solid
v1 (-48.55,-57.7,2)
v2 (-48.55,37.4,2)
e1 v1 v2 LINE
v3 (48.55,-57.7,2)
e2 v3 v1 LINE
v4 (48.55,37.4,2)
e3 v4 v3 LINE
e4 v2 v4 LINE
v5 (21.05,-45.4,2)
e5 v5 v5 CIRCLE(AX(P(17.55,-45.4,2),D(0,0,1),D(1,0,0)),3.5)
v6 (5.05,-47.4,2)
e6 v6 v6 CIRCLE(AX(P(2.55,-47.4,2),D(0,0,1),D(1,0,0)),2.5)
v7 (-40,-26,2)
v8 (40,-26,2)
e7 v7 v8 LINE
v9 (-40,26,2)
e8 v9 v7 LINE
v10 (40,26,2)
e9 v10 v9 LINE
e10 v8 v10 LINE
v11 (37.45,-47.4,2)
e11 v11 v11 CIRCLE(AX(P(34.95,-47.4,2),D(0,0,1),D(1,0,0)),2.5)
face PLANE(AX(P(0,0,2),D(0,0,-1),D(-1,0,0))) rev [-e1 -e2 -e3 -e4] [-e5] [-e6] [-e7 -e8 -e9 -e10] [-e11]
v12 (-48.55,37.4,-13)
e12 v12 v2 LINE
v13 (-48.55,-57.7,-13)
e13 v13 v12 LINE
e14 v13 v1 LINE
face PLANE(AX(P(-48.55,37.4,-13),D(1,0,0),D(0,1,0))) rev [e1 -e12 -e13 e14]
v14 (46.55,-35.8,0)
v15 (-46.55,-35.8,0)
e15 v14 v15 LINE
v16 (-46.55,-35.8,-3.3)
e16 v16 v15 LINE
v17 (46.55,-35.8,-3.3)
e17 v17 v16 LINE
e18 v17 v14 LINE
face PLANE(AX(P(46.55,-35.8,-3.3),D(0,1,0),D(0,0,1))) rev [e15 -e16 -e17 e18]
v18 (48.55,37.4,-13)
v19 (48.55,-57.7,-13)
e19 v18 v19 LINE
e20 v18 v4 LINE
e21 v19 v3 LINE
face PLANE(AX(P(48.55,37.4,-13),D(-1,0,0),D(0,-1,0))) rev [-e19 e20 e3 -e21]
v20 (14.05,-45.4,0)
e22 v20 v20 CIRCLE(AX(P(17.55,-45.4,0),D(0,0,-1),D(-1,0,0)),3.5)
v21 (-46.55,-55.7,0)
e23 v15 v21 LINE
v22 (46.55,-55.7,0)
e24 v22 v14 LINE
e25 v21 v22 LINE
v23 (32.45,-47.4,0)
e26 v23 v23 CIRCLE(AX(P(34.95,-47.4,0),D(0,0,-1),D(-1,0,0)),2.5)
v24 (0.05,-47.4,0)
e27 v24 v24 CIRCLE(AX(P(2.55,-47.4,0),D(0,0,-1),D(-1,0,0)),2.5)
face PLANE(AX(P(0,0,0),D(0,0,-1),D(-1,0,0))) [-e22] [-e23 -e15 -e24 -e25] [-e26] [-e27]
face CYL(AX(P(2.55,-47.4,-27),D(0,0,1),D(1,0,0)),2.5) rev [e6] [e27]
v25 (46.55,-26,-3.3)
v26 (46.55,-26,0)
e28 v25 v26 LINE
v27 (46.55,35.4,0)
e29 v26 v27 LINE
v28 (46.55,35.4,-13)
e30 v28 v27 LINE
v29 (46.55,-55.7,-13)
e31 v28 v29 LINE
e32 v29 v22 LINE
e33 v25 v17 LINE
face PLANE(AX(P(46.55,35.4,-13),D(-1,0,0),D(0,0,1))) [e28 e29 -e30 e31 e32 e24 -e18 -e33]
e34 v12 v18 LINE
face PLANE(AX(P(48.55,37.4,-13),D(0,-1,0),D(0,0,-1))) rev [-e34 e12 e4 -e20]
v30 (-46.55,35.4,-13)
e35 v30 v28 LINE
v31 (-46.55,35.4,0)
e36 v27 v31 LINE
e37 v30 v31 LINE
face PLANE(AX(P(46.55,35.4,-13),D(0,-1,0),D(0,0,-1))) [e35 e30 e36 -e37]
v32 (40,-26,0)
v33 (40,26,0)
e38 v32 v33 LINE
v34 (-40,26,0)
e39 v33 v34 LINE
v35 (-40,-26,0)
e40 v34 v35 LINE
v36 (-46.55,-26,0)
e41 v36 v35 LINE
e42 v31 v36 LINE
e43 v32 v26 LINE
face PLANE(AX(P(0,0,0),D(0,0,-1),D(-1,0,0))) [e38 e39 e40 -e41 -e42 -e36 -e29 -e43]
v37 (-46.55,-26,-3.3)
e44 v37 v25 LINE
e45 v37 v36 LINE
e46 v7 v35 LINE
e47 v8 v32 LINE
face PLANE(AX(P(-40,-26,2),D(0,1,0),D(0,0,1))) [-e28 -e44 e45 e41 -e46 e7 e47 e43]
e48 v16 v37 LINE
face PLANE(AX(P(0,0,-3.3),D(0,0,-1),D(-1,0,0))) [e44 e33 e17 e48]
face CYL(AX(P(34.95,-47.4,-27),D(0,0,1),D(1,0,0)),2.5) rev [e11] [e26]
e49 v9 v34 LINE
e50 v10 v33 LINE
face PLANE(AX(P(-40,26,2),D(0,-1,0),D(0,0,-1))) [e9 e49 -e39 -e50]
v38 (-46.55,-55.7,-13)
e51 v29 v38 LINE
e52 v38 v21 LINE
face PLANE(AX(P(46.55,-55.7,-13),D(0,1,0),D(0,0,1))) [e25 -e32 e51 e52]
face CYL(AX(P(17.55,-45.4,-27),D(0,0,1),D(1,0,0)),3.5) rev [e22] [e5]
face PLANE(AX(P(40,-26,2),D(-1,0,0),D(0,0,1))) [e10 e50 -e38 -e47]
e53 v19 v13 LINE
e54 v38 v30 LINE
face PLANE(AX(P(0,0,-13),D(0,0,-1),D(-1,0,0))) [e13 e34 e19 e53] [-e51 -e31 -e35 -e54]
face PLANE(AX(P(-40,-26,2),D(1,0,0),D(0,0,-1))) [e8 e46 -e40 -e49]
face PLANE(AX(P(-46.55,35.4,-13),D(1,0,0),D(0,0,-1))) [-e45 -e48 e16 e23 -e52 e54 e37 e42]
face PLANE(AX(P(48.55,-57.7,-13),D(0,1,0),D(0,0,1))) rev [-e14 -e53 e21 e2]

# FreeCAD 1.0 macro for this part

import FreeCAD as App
import Part
import Sketcher

doc = App.newDocument("Part")
body = doc.addObject("PartDesign::Body", "Body")

sketch1 = doc.addObject("Sketcher::SketchObject", "Sketch")
body.addObject(sketch1)
sketch1.AttachmentSupport = (doc.XY_Plane, [""])
sketch1.MapMode = "FlatFace"
sketch1.addGeometry(Part.LineSegment(App.Vector(-46.55, -55.7, 0), App.Vector(46.55, -55.7, 0)), False)
sketch1.addGeometry(Part.LineSegment(App.Vector(46.55, -55.7, 0), App.Vector(46.55, 35.4, 0)), False)
sketch1.addGeometry(Part.LineSegment(App.Vector(46.55, 35.4, 0), App.Vector(-46.55, 35.4, 0)), False)
sketch1.addGeometry(Part.LineSegment(App.Vector(-46.55, 35.4, 0), App.Vector(-46.55, -55.7, 0)), False)
sketch1.addGeometry(Part.LineSegment(App.Vector(40, -26, 0), App.Vector(-40, -26, 0)), False)
sketch1.addGeometry(Part.LineSegment(App.Vector(-40, -26, 0), App.Vector(-40, 26, 0)), False)
sketch1.addGeometry(Part.LineSegment(App.Vector(-40, 26, 0), App.Vector(40, 26, 0)), False)
sketch1.addGeometry(Part.LineSegment(App.Vector(40, 26, 0), App.Vector(40, -26, 0)), False)
sketch1.addConstraint(Sketcher.Constraint("Coincident", 0, 2, 1, 1))
sketch1.addConstraint(Sketcher.Constraint("Coincident", 1, 2, 2, 1))
sketch1.addConstraint(Sketcher.Constraint("Coincident", 2, 2, 3, 1))
sketch1.addConstraint(Sketcher.Constraint("Coincident", 3, 2, 0, 1))
sketch1.addConstraint(Sketcher.Constraint("Coincident", 4, 2, 5, 1))
sketch1.addConstraint(Sketcher.Constraint("Coincident", 5, 2, 6, 1))
sketch1.addConstraint(Sketcher.Constraint("Coincident", 6, 2, 7, 1))
sketch1.addConstraint(Sketcher.Constraint("Coincident", 7, 2, 4, 1))
sketch1.addConstraint(Sketcher.Constraint("Horizontal", 0))
sketch1.addConstraint(Sketcher.Constraint("Vertical", 1))
sketch1.addConstraint(Sketcher.Constraint("Horizontal", 2))
sketch1.addConstraint(Sketcher.Constraint("Vertical", 3))
sketch1.addConstraint(Sketcher.Constraint("Horizontal", 4))
sketch1.addConstraint(Sketcher.Constraint("Vertical", 5))
sketch1.addConstraint(Sketcher.Constraint("Horizontal", 6))
sketch1.addConstraint(Sketcher.Constraint("Vertical", 7))
sketch1.addConstraint(Sketcher.Constraint("Symmetric", 4, 2, 6, 2, -1, 1))
sketch1.addConstraint(Sketcher.Constraint("DistanceX", 4, 2, 4, 1, 80.0))
sketch1.addConstraint(Sketcher.Constraint("DistanceY", 5, 1, 5, 2, 52.0))
sketch1.addConstraint(Sketcher.Constraint("DistanceX", 0, 1, 0, 2, 93.1))
sketch1.addConstraint(Sketcher.Constraint("DistanceY", 1, 1, 1, 2, 91.1))
sketch1.addConstraint(Sketcher.Constraint("DistanceY", 0, 2, -1, 1, 55.7))
sketch1.addConstraint(Sketcher.Constraint("DistanceX", -1, 1, 0, 2, 46.55))
pad1 = doc.addObject("PartDesign::Pad", "Pad")
body.addObject(pad1)
pad1.Profile = sketch1
pad1.Length = 2

sketch2 = doc.addObject("Sketcher::SketchObject", "Sketch001")
body.addObject(sketch2)
sketch2.AttachmentSupport = (doc.XY_Plane, [""])
sketch2.MapMode = "FlatFace"
sketch2.addGeometry(Part.LineSegment(App.Vector(46.55, -26, 0), App.Vector(46.55, -35.8, 0)), False)
sketch2.addGeometry(Part.LineSegment(App.Vector(46.55, -35.8, 0), App.Vector(-46.55, -35.8, 0)), False)
sketch2.addGeometry(Part.LineSegment(App.Vector(-46.55, -35.8, 0), App.Vector(-46.55, -26, 0)), False)
sketch2.addGeometry(Part.LineSegment(App.Vector(-46.55, -26, 0), App.Vector(46.55, -26, 0)), False)
sketch2.addConstraint(Sketcher.Constraint("Coincident", 0, 2, 1, 1))
sketch2.addConstraint(Sketcher.Constraint("Coincident", 1, 2, 2, 1))
sketch2.addConstraint(Sketcher.Constraint("Coincident", 2, 2, 3, 1))
sketch2.addConstraint(Sketcher.Constraint("Coincident", 3, 2, 0, 1))
sketch2.addConstraint(Sketcher.Constraint("Vertical", 0))
sketch2.addConstraint(Sketcher.Constraint("Horizontal", 1))
sketch2.addConstraint(Sketcher.Constraint("Vertical", 2))
sketch2.addConstraint(Sketcher.Constraint("Horizontal", 3))
sketch2.addConstraint(Sketcher.Constraint("DistanceX", 1, 2, 1, 1, 93.1))
sketch2.addConstraint(Sketcher.Constraint("DistanceY", 0, 2, 0, 1, 9.8))
sketch2.addConstraint(Sketcher.Constraint("DistanceY", 2, 2, -1, 1, 26.0))
sketch2.addConstraint(Sketcher.Constraint("DistanceX", -1, 1, 0, 2, 46.55))
pad2 = doc.addObject("PartDesign::Pad", "Pad001")
body.addObject(pad2)
pad2.Profile = sketch2
pad2.Length = 3.3
pad2.Reversed = True

sketch3 = doc.addObject("Sketcher::SketchObject", "Sketch002")
body.addObject(sketch3)
sketch3.AttachmentSupport = (doc.XY_Plane, [""])
sketch3.MapMode = "FlatFace"
sketch3.addGeometry(Part.LineSegment(App.Vector(48.55, 37.4, 0), App.Vector(48.55, -57.7, 0)), False)
sketch3.addGeometry(Part.LineSegment(App.Vector(48.55, -57.7, 0), App.Vector(-48.55, -57.7, 0)), False)
sketch3.addGeometry(Part.LineSegment(App.Vector(-48.55, -57.7, 0), App.Vector(-48.55, 37.4, 0)), False)
sketch3.addGeometry(Part.LineSegment(App.Vector(-48.55, 37.4, 0), App.Vector(48.55, 37.4, 0)), False)
sketch3.addGeometry(Part.LineSegment(App.Vector(-46.55, -55.7, 0), App.Vector(46.55, -55.7, 0)), False)
sketch3.addGeometry(Part.LineSegment(App.Vector(46.55, -55.7, 0), App.Vector(46.55, 35.4, 0)), False)
sketch3.addGeometry(Part.LineSegment(App.Vector(46.55, 35.4, 0), App.Vector(-46.55, 35.4, 0)), False)
sketch3.addGeometry(Part.LineSegment(App.Vector(-46.55, 35.4, 0), App.Vector(-46.55, -55.7, 0)), False)
sketch3.addConstraint(Sketcher.Constraint("Coincident", 0, 2, 1, 1))
sketch3.addConstraint(Sketcher.Constraint("Coincident", 1, 2, 2, 1))
sketch3.addConstraint(Sketcher.Constraint("Coincident", 2, 2, 3, 1))
sketch3.addConstraint(Sketcher.Constraint("Coincident", 3, 2, 0, 1))
sketch3.addConstraint(Sketcher.Constraint("Coincident", 4, 2, 5, 1))
sketch3.addConstraint(Sketcher.Constraint("Coincident", 5, 2, 6, 1))
sketch3.addConstraint(Sketcher.Constraint("Coincident", 6, 2, 7, 1))
sketch3.addConstraint(Sketcher.Constraint("Coincident", 7, 2, 4, 1))
sketch3.addConstraint(Sketcher.Constraint("Vertical", 0))
sketch3.addConstraint(Sketcher.Constraint("Horizontal", 1))
sketch3.addConstraint(Sketcher.Constraint("Vertical", 2))
sketch3.addConstraint(Sketcher.Constraint("Horizontal", 3))
sketch3.addConstraint(Sketcher.Constraint("Horizontal", 4))
sketch3.addConstraint(Sketcher.Constraint("Vertical", 5))
sketch3.addConstraint(Sketcher.Constraint("Horizontal", 6))
sketch3.addConstraint(Sketcher.Constraint("Vertical", 7))
sketch3.addConstraint(Sketcher.Constraint("DistanceX", 1, 2, 1, 1, 97.1))
sketch3.addConstraint(Sketcher.Constraint("DistanceX", 4, 1, 4, 2, 93.1))
sketch3.addConstraint(Sketcher.Constraint("DistanceY", 0, 2, 0, 1, 95.1))
sketch3.addConstraint(Sketcher.Constraint("DistanceY", 5, 1, 5, 2, 91.1))
sketch3.addConstraint(Sketcher.Constraint("DistanceX", 4, 2, 0, 2, 2.0))
sketch3.addConstraint(Sketcher.Constraint("DistanceY", 0, 2, 4, 2, 2.0))
sketch3.addConstraint(Sketcher.Constraint("DistanceY", 0, 2, -1, 1, 57.7))
sketch3.addConstraint(Sketcher.Constraint("DistanceX", -1, 1, 0, 2, 48.55))
pad3 = doc.addObject("PartDesign::Pad", "Pad002")
body.addObject(pad3)
pad3.Profile = sketch3
pad3.Type = "TwoLengths"
pad3.Length = 13
pad3.Length2 = 2
pad3.Reversed = True

sketch4 = doc.addObject("Sketcher::SketchObject", "Sketch003")
body.addObject(sketch4)
sketch4.AttachmentSupport = (doc.XY_Plane, [""])
sketch4.MapMode = "FlatFace"
sketch4.AttachmentOffset = App.Placement(App.Vector(0, 0, 2), App.Rotation())
sketch4.addGeometry(Part.Circle(App.Vector(17.55, -45.4, 0), App.Vector(0, 0, 1), 3.5), False)
sketch4.addConstraint(Sketcher.Constraint("Diameter", 0, 7.0))
sketch4.addConstraint(Sketcher.Constraint("DistanceY", 0, 3, -1, 1, 45.4))
sketch4.addConstraint(Sketcher.Constraint("DistanceX", -1, 1, 0, 3, 17.55))
pocket1 = doc.addObject("PartDesign::Pocket", "Pocket")
body.addObject(pocket1)
pocket1.Profile = sketch4
pocket1.Length = 29

sketch5 = doc.addObject("Sketcher::SketchObject", "Sketch004")
body.addObject(sketch5)
sketch5.AttachmentSupport = (doc.XY_Plane, [""])
sketch5.MapMode = "FlatFace"
sketch5.AttachmentOffset = App.Placement(App.Vector(0, 0, 2), App.Rotation())
sketch5.addGeometry(Part.Circle(App.Vector(2.55, -47.4, 0), App.Vector(0, 0, 1), 2.5), False)
sketch5.addGeometry(Part.Circle(App.Vector(34.95, -47.4, 0), App.Vector(0, 0, 1), 2.5), False)
sketch5.addConstraint(Sketcher.Constraint("Equal", 0, 1))
sketch5.addConstraint(Sketcher.Constraint("Horizontal", 0, 3, 1, 3))
sketch5.addConstraint(Sketcher.Constraint("Diameter", 0, 5.0))
sketch5.addConstraint(Sketcher.Constraint("DistanceY", 0, 3, -1, 1, 47.4))
sketch5.addConstraint(Sketcher.Constraint("DistanceX", 0, 3, 1, 3, 32.4))
sketch5.addConstraint(Sketcher.Constraint("DistanceX", -1, 1, 0, 3, 2.55))
pocket2 = doc.addObject("PartDesign::Pocket", "Pocket001")
body.addObject(pocket2)
pocket2.Profile = sketch5
pocket2.Length = 29

doc.recompute()
